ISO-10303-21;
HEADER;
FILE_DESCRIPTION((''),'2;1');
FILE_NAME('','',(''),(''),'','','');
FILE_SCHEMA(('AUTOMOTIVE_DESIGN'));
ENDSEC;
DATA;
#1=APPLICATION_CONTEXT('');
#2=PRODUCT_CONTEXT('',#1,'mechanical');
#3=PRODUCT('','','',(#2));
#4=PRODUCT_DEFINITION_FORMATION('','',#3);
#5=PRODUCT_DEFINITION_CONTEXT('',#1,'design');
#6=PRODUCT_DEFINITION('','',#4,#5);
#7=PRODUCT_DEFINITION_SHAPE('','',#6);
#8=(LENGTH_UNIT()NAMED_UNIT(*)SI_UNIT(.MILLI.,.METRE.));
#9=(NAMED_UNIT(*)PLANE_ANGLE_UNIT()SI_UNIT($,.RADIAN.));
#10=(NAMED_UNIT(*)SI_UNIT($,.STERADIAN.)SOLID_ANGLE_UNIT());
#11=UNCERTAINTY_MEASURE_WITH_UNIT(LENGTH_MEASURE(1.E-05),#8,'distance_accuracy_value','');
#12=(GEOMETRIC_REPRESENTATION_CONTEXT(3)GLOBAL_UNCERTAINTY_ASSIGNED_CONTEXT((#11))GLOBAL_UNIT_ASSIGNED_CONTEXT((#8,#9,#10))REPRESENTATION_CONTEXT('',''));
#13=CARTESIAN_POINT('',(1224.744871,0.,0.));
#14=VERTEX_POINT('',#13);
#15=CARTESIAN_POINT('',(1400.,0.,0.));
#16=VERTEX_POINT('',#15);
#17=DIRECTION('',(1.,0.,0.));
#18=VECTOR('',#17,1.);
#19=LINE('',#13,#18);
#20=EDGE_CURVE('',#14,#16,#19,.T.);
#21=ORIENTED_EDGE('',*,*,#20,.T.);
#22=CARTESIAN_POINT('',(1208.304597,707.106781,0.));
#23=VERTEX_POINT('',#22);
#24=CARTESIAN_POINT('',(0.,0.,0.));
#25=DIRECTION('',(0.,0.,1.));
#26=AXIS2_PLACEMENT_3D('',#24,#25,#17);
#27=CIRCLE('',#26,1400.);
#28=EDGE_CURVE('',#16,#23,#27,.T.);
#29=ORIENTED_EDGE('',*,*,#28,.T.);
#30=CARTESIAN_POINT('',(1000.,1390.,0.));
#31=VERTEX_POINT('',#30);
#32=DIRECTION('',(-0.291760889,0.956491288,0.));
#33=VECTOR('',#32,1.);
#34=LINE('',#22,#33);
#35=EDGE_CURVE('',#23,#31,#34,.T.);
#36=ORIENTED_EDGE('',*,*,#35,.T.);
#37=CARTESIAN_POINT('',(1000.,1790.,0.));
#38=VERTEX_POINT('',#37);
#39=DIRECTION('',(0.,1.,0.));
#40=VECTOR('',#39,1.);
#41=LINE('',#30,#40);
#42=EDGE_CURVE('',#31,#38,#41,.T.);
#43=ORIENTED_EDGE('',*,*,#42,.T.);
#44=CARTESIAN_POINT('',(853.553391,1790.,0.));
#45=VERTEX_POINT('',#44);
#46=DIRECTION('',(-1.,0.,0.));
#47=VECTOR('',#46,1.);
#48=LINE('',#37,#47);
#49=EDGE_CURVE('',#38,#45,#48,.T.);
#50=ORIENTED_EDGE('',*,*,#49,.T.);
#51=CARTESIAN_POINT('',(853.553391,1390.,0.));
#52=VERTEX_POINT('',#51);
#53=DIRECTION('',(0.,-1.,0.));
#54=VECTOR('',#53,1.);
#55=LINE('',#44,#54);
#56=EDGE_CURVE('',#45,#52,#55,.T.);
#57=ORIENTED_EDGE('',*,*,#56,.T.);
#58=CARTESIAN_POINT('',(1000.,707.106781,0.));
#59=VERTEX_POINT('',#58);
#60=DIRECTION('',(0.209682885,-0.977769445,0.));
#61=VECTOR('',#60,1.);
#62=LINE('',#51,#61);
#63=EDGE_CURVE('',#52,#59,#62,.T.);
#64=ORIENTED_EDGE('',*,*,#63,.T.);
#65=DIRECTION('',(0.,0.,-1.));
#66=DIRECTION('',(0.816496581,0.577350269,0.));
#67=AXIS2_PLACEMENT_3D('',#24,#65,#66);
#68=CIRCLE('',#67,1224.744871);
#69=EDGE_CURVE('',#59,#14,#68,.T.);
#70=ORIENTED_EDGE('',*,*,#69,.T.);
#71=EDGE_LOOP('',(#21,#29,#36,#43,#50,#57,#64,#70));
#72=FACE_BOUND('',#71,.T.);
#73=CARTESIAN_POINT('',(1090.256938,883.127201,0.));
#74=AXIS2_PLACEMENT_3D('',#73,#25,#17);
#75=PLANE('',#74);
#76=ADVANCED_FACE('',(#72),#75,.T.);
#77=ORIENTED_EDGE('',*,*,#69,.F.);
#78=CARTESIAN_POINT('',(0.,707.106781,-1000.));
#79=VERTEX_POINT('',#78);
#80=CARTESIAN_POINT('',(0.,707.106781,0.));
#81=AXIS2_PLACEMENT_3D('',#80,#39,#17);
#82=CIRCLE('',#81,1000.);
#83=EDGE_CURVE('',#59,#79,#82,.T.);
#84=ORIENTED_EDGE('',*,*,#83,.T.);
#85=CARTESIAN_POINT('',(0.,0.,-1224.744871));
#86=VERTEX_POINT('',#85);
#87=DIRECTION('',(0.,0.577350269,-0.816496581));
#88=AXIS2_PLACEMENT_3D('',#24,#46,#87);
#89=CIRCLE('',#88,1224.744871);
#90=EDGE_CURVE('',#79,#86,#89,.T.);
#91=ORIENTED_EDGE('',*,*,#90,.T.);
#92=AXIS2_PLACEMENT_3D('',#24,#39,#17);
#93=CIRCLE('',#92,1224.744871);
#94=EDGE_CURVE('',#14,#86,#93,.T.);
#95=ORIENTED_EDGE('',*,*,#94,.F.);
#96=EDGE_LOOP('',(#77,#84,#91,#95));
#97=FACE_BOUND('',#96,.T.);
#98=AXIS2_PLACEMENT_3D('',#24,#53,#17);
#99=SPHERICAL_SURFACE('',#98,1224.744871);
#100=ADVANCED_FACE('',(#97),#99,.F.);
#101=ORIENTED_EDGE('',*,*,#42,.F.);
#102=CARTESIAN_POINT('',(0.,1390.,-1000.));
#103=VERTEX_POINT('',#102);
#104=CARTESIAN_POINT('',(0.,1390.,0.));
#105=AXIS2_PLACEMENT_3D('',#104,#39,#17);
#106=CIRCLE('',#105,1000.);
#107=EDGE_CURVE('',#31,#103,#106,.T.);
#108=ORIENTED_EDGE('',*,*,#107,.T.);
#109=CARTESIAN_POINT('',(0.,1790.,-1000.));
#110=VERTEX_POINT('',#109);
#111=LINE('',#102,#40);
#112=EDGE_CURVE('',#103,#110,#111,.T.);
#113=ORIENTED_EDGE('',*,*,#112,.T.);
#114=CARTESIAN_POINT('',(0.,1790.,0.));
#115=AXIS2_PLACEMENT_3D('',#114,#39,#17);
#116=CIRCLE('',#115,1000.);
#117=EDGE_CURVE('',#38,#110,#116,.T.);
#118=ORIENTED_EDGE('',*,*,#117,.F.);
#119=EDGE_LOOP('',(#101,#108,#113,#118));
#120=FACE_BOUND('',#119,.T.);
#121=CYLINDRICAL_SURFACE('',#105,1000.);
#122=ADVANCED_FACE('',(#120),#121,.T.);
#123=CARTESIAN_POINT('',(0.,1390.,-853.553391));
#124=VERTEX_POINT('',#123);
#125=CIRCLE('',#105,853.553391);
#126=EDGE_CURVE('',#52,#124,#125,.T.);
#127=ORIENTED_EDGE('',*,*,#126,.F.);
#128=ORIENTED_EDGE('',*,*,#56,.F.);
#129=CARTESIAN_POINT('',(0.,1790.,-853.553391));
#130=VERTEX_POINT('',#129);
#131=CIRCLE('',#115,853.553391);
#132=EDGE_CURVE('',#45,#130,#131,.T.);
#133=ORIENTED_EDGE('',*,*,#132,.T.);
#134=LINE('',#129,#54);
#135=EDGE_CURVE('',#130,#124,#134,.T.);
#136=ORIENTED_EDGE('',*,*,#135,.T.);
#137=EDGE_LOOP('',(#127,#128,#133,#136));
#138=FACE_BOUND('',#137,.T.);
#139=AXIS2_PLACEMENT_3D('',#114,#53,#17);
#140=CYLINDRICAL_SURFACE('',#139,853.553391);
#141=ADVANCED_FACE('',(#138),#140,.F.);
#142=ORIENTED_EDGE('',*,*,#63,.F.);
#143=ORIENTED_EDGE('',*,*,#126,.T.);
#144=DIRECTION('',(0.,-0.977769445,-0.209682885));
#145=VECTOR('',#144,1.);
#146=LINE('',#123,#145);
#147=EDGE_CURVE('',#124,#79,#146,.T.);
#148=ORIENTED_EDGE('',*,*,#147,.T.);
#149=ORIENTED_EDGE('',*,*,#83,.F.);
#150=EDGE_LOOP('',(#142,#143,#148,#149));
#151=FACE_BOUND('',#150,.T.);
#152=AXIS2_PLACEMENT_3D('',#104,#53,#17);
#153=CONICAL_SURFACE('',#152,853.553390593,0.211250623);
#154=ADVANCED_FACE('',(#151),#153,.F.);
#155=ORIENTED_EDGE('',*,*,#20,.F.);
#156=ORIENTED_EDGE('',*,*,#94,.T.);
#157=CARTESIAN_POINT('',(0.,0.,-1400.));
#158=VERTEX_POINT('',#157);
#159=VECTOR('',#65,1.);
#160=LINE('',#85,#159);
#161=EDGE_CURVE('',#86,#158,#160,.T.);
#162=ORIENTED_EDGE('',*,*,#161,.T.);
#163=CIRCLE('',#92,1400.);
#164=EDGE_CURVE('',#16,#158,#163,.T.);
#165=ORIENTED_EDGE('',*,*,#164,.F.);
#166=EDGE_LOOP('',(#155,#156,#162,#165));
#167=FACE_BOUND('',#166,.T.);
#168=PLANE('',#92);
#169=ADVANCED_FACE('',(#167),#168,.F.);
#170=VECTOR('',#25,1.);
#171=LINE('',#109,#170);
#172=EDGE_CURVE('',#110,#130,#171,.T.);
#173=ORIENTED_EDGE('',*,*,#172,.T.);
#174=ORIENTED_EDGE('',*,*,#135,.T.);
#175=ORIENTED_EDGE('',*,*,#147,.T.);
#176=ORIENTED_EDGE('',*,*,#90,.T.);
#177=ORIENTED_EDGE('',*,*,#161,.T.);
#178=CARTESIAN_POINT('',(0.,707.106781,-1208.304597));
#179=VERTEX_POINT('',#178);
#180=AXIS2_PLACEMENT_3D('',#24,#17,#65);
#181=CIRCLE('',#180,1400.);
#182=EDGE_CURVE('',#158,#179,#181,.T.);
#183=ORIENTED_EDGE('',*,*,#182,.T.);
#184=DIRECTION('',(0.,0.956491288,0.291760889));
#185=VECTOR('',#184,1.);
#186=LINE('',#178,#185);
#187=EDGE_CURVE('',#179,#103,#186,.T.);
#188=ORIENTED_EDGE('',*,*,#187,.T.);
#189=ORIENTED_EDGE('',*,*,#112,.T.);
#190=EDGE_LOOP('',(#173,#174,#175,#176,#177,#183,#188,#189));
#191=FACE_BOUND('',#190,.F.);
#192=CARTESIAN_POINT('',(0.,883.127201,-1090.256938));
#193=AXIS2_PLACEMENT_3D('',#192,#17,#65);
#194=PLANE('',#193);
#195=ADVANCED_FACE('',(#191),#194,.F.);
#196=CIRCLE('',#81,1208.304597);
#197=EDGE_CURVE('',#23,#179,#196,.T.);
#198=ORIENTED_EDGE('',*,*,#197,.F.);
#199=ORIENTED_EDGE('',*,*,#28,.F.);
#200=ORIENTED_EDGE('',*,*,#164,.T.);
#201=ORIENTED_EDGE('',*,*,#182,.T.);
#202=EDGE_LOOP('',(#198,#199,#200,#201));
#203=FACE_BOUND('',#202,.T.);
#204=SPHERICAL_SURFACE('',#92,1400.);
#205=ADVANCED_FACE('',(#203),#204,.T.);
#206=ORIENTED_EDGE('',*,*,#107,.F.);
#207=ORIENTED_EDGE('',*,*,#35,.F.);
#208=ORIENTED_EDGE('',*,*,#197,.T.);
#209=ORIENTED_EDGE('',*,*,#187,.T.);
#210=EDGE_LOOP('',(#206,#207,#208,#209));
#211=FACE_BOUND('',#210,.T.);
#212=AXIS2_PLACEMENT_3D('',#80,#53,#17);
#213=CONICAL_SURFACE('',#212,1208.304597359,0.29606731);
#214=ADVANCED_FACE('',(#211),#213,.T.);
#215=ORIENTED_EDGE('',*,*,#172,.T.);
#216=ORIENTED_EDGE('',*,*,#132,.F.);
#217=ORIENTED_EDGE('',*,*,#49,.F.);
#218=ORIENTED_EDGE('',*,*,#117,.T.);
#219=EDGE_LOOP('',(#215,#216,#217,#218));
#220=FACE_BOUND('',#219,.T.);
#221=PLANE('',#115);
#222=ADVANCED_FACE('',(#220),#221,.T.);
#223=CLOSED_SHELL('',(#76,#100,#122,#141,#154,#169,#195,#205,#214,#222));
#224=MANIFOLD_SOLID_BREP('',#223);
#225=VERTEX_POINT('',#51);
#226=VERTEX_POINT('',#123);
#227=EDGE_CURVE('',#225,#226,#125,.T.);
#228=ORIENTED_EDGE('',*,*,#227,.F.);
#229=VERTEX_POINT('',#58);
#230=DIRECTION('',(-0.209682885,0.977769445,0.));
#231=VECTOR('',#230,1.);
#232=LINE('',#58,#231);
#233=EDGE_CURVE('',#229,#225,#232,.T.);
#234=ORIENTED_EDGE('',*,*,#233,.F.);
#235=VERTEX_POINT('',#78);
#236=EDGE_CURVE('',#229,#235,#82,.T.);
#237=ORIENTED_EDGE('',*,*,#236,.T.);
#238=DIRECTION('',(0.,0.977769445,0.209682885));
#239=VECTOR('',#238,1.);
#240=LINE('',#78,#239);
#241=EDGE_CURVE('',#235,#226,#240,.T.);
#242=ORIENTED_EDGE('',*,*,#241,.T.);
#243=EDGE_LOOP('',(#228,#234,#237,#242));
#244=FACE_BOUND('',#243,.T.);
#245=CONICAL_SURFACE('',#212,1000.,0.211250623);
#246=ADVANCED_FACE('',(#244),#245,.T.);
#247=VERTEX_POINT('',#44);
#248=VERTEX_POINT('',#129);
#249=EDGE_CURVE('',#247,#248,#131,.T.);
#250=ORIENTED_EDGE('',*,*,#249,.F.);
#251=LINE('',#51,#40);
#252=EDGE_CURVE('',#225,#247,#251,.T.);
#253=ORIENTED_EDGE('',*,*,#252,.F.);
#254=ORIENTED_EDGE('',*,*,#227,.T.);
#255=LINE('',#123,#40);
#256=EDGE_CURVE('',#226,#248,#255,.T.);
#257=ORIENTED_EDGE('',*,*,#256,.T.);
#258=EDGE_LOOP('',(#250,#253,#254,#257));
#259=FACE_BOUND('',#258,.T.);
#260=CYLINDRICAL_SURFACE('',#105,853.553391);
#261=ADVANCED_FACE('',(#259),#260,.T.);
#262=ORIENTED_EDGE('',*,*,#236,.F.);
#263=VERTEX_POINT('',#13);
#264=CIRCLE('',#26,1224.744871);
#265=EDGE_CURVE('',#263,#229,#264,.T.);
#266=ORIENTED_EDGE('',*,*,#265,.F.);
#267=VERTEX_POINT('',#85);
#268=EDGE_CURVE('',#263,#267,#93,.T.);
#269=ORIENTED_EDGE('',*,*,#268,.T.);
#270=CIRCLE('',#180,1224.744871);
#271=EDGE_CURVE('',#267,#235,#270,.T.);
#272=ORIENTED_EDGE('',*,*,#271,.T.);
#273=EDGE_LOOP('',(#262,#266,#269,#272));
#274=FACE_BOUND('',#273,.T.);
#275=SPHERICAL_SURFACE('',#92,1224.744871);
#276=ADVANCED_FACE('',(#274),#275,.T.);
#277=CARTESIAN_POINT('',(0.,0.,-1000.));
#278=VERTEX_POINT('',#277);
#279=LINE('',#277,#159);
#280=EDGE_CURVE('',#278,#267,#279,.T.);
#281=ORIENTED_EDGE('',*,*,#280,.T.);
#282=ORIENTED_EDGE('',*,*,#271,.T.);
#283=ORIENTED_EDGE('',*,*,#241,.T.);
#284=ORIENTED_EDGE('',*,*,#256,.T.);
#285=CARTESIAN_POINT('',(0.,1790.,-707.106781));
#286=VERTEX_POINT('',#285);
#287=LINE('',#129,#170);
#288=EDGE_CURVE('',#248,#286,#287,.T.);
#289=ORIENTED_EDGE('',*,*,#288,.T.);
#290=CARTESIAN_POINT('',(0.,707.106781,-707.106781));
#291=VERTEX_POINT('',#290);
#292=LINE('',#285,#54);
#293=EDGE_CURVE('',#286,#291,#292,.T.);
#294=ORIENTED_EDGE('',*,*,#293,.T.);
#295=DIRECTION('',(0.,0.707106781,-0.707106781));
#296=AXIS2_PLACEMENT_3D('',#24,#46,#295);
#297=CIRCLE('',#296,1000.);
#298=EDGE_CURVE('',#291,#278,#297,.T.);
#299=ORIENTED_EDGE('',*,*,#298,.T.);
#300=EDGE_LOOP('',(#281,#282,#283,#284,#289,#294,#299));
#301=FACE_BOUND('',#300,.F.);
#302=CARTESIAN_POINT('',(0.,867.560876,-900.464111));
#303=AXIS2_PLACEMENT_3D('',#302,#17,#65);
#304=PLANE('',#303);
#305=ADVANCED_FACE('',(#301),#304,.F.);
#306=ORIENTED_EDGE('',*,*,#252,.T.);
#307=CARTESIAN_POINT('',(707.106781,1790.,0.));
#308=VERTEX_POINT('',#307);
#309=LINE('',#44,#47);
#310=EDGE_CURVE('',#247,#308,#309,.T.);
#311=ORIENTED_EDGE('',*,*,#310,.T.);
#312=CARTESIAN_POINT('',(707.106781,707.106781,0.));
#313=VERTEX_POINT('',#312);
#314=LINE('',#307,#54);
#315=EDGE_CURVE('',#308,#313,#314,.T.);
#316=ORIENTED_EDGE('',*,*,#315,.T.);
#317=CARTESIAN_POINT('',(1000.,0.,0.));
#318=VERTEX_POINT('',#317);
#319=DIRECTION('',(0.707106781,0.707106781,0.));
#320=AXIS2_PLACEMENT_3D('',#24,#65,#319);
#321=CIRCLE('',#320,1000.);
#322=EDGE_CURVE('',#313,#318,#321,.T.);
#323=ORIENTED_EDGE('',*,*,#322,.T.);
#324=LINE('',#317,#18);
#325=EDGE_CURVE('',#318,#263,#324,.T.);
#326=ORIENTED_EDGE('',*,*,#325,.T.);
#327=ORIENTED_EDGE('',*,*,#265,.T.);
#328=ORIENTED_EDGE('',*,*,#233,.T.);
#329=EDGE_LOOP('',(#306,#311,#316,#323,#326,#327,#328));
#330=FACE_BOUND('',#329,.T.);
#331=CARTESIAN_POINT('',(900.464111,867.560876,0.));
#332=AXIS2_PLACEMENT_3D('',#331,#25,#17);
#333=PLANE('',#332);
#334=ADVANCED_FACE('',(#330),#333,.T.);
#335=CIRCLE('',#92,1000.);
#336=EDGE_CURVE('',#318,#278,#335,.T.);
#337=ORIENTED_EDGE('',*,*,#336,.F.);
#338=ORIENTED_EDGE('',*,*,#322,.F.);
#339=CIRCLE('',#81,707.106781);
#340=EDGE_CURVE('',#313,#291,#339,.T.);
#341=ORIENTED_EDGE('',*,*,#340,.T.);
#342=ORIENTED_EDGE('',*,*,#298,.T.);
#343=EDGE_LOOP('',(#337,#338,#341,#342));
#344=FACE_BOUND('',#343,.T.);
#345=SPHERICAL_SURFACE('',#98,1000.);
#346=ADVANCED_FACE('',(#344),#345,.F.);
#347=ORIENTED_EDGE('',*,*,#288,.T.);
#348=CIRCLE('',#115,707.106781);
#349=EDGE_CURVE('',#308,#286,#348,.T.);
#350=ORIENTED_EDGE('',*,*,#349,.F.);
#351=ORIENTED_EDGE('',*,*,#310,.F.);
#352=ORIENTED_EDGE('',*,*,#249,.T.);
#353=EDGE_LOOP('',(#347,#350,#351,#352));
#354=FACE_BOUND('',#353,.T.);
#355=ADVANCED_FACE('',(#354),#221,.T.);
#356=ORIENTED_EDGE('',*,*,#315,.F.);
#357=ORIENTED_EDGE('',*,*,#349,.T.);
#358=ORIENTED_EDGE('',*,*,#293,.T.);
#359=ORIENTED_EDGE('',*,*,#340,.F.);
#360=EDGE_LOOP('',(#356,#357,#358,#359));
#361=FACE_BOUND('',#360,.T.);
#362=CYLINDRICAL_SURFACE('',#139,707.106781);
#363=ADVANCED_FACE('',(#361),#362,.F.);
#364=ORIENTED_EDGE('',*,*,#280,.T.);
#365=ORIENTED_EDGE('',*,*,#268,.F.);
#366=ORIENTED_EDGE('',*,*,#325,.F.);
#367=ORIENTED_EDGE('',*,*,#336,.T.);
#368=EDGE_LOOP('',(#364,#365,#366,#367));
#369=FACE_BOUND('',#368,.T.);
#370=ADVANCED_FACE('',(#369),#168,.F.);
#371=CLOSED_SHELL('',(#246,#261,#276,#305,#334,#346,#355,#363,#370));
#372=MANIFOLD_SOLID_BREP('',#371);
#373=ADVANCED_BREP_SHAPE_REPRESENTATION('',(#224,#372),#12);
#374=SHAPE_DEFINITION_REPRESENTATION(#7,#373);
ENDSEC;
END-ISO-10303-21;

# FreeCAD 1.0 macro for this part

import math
import FreeCAD as App
import Part
import Sketcher

V = App.Vector

doc = App.newDocument("Part")
body = doc.addObject("PartDesign::Body", "Body")

# Sketch on XY plane
sketch1 = body.newObject("Sketcher::SketchObject", "Sketch")
sketch1.AttachmentSupport = (doc.getObject("XY_Plane"), [""])
sketch1.MapMode = "FlatFace"
sketch1.addGeometry([
    Part.LineSegment(V(707.106781, 1790, 0), V(707.106781, 707.106781, 0)),  # 0
    Part.ArcOfCircle(Part.Circle(V(0, 0, 0), V(0, 0, 1), 1000), math.radians(0), math.radians(45)),  # 1
    Part.LineSegment(V(1000, 0, 0), V(1224.744871, 0, 0)),  # 2
    Part.ArcOfCircle(Part.Circle(V(0, 0, 0), V(0, 0, 1), 1224.744871), math.radians(0), math.radians(35.26439)),  # 3
    Part.LineSegment(V(1000, 707.106781, 0), V(853.553391, 1390, 0)),  # 4
    Part.LineSegment(V(853.553391, 1390, 0), V(853.553391, 1790, 0)),  # 5
    Part.LineSegment(V(853.553391, 1790, 0), V(707.106781, 1790, 0)),  # 6
], False)
sketch1.addConstraint([
    Sketcher.Constraint("Coincident", 0, 2, 1, 2),
    Sketcher.Constraint("Coincident", 1, 1, 2, 1),
    Sketcher.Constraint("Coincident", 2, 2, 3, 1),
    Sketcher.Constraint("Coincident", 3, 2, 4, 1),
    Sketcher.Constraint("Coincident", 4, 2, 5, 1),
    Sketcher.Constraint("Coincident", 5, 2, 6, 1),
    Sketcher.Constraint("Coincident", 6, 2, 0, 1),
    Sketcher.Constraint("Vertical", 0),
    Sketcher.Constraint("Horizontal", 2),
    Sketcher.Constraint("Vertical", 5),
    Sketcher.Constraint("Horizontal", 6),
    Sketcher.Constraint("Coincident", 1, 3, -1, 1),
    Sketcher.Constraint("Coincident", 3, 3, -1, 1),
    Sketcher.Constraint("PointOnObject", 2, 2, -1),
    Sketcher.Constraint("Radius", 1, 1000.0),
    Sketcher.Constraint("DistanceY", 5, 1, 5, 2, 400.0),
    Sketcher.Constraint("DistanceY", -1, 1, 4, 2, 1390.0),
    Sketcher.Constraint("Radius", 3, 1224.744871),
    Sketcher.Constraint("DistanceX", 6, 2, 6, 1, 146.446609),
    Sketcher.Constraint("DistanceY", 0, 2, 0, 1, 1082.893219),
    Sketcher.Constraint("Distance", 4, 698.419471),
])
revolution = body.newObject("PartDesign::Revolution", "Revolution")
revolution.Profile = sketch1
revolution.ReferenceAxis = (sketch1, ["V_Axis"])
revolution.Angle = 90
body2 = doc.addObject("PartDesign::Body", "Body001")

# Sketch on XY plane
sketch2 = body2.newObject("Sketcher::SketchObject", "Sketch001")
sketch2.AttachmentSupport = (doc.getObject("XY_Plane001"), [""])
sketch2.MapMode = "FlatFace"
sketch2.addGeometry([
    Part.LineSegment(V(1000, 1790, 0), V(853.553391, 1790, 0)),  # 0
    Part.LineSegment(V(853.553391, 1790, 0), V(853.553391, 1390, 0)),  # 1
    Part.LineSegment(V(853.553391, 1390, 0), V(1000, 707.106781, 0)),  # 2
    Part.ArcOfCircle(Part.Circle(V(0, 0, 0), V(0, 0, 1), 1224.744871), math.radians(0), math.radians(35.26439)),  # 3
    Part.LineSegment(V(1224.744871, 0, 0), V(1400, 0, 0)),  # 4
    Part.ArcOfCircle(Part.Circle(V(0, 0, 0), V(0, 0, 1), 1400), math.radians(0), math.radians(30.336416)),  # 5
    Part.LineSegment(V(1208.304597, 707.106781, 0), V(1000, 1390, 0)),  # 6
    Part.LineSegment(V(1000, 1390, 0), V(1000, 1790, 0)),  # 7
], False)
sketch2.addConstraint([
    Sketcher.Constraint("Coincident", 0, 2, 1, 1),
    Sketcher.Constraint("Coincident", 1, 2, 2, 1),
    Sketcher.Constraint("Coincident", 2, 2, 3, 2),
    Sketcher.Constraint("Coincident", 3, 1, 4, 1),
    Sketcher.Constraint("Coincident", 4, 2, 5, 1),
    Sketcher.Constraint("Coincident", 5, 2, 6, 1),
    Sketcher.Constraint("Coincident", 6, 2, 7, 1),
    Sketcher.Constraint("Coincident", 7, 2, 0, 1),
    Sketcher.Constraint("Horizontal", 0),
    Sketcher.Constraint("Vertical", 1),
    Sketcher.Constraint("Horizontal", 4),
    Sketcher.Constraint("Vertical", 7),
    Sketcher.Constraint("Coincident", 3, 3, -1, 1),
    Sketcher.Constraint("Coincident", 5, 3, -1, 1),
    Sketcher.Constraint("PointOnObject", 4, 2, -1),
    Sketcher.Constraint("Horizontal", 1, 2, 6, 2),
    Sketcher.Constraint("Vertical", 2, 2, 6, 2),
    Sketcher.Constraint("Radius", 5, 1400.0),
    Sketcher.Constraint("DistanceY", 1, 2, 1, 1, 400.0),
    Sketcher.Constraint("DistanceY", -1, 1, 0, 2, 1790.0),
    Sketcher.Constraint("DistanceX", -1, 1, 2, 2, 1000.0),
    Sketcher.Constraint("Radius", 3, 1224.744871),
    Sketcher.Constraint("DistanceX", 0, 2, 0, 1, 146.446609),
    Sketcher.Constraint("Distance", 6, 713.956549),
])
revolution2 = body2.newObject("PartDesign::Revolution", "Revolution001")
revolution2.Profile = sketch2
revolution2.ReferenceAxis = (sketch2, ["V_Axis"])
revolution2.Angle = 90

doc.recompute()
